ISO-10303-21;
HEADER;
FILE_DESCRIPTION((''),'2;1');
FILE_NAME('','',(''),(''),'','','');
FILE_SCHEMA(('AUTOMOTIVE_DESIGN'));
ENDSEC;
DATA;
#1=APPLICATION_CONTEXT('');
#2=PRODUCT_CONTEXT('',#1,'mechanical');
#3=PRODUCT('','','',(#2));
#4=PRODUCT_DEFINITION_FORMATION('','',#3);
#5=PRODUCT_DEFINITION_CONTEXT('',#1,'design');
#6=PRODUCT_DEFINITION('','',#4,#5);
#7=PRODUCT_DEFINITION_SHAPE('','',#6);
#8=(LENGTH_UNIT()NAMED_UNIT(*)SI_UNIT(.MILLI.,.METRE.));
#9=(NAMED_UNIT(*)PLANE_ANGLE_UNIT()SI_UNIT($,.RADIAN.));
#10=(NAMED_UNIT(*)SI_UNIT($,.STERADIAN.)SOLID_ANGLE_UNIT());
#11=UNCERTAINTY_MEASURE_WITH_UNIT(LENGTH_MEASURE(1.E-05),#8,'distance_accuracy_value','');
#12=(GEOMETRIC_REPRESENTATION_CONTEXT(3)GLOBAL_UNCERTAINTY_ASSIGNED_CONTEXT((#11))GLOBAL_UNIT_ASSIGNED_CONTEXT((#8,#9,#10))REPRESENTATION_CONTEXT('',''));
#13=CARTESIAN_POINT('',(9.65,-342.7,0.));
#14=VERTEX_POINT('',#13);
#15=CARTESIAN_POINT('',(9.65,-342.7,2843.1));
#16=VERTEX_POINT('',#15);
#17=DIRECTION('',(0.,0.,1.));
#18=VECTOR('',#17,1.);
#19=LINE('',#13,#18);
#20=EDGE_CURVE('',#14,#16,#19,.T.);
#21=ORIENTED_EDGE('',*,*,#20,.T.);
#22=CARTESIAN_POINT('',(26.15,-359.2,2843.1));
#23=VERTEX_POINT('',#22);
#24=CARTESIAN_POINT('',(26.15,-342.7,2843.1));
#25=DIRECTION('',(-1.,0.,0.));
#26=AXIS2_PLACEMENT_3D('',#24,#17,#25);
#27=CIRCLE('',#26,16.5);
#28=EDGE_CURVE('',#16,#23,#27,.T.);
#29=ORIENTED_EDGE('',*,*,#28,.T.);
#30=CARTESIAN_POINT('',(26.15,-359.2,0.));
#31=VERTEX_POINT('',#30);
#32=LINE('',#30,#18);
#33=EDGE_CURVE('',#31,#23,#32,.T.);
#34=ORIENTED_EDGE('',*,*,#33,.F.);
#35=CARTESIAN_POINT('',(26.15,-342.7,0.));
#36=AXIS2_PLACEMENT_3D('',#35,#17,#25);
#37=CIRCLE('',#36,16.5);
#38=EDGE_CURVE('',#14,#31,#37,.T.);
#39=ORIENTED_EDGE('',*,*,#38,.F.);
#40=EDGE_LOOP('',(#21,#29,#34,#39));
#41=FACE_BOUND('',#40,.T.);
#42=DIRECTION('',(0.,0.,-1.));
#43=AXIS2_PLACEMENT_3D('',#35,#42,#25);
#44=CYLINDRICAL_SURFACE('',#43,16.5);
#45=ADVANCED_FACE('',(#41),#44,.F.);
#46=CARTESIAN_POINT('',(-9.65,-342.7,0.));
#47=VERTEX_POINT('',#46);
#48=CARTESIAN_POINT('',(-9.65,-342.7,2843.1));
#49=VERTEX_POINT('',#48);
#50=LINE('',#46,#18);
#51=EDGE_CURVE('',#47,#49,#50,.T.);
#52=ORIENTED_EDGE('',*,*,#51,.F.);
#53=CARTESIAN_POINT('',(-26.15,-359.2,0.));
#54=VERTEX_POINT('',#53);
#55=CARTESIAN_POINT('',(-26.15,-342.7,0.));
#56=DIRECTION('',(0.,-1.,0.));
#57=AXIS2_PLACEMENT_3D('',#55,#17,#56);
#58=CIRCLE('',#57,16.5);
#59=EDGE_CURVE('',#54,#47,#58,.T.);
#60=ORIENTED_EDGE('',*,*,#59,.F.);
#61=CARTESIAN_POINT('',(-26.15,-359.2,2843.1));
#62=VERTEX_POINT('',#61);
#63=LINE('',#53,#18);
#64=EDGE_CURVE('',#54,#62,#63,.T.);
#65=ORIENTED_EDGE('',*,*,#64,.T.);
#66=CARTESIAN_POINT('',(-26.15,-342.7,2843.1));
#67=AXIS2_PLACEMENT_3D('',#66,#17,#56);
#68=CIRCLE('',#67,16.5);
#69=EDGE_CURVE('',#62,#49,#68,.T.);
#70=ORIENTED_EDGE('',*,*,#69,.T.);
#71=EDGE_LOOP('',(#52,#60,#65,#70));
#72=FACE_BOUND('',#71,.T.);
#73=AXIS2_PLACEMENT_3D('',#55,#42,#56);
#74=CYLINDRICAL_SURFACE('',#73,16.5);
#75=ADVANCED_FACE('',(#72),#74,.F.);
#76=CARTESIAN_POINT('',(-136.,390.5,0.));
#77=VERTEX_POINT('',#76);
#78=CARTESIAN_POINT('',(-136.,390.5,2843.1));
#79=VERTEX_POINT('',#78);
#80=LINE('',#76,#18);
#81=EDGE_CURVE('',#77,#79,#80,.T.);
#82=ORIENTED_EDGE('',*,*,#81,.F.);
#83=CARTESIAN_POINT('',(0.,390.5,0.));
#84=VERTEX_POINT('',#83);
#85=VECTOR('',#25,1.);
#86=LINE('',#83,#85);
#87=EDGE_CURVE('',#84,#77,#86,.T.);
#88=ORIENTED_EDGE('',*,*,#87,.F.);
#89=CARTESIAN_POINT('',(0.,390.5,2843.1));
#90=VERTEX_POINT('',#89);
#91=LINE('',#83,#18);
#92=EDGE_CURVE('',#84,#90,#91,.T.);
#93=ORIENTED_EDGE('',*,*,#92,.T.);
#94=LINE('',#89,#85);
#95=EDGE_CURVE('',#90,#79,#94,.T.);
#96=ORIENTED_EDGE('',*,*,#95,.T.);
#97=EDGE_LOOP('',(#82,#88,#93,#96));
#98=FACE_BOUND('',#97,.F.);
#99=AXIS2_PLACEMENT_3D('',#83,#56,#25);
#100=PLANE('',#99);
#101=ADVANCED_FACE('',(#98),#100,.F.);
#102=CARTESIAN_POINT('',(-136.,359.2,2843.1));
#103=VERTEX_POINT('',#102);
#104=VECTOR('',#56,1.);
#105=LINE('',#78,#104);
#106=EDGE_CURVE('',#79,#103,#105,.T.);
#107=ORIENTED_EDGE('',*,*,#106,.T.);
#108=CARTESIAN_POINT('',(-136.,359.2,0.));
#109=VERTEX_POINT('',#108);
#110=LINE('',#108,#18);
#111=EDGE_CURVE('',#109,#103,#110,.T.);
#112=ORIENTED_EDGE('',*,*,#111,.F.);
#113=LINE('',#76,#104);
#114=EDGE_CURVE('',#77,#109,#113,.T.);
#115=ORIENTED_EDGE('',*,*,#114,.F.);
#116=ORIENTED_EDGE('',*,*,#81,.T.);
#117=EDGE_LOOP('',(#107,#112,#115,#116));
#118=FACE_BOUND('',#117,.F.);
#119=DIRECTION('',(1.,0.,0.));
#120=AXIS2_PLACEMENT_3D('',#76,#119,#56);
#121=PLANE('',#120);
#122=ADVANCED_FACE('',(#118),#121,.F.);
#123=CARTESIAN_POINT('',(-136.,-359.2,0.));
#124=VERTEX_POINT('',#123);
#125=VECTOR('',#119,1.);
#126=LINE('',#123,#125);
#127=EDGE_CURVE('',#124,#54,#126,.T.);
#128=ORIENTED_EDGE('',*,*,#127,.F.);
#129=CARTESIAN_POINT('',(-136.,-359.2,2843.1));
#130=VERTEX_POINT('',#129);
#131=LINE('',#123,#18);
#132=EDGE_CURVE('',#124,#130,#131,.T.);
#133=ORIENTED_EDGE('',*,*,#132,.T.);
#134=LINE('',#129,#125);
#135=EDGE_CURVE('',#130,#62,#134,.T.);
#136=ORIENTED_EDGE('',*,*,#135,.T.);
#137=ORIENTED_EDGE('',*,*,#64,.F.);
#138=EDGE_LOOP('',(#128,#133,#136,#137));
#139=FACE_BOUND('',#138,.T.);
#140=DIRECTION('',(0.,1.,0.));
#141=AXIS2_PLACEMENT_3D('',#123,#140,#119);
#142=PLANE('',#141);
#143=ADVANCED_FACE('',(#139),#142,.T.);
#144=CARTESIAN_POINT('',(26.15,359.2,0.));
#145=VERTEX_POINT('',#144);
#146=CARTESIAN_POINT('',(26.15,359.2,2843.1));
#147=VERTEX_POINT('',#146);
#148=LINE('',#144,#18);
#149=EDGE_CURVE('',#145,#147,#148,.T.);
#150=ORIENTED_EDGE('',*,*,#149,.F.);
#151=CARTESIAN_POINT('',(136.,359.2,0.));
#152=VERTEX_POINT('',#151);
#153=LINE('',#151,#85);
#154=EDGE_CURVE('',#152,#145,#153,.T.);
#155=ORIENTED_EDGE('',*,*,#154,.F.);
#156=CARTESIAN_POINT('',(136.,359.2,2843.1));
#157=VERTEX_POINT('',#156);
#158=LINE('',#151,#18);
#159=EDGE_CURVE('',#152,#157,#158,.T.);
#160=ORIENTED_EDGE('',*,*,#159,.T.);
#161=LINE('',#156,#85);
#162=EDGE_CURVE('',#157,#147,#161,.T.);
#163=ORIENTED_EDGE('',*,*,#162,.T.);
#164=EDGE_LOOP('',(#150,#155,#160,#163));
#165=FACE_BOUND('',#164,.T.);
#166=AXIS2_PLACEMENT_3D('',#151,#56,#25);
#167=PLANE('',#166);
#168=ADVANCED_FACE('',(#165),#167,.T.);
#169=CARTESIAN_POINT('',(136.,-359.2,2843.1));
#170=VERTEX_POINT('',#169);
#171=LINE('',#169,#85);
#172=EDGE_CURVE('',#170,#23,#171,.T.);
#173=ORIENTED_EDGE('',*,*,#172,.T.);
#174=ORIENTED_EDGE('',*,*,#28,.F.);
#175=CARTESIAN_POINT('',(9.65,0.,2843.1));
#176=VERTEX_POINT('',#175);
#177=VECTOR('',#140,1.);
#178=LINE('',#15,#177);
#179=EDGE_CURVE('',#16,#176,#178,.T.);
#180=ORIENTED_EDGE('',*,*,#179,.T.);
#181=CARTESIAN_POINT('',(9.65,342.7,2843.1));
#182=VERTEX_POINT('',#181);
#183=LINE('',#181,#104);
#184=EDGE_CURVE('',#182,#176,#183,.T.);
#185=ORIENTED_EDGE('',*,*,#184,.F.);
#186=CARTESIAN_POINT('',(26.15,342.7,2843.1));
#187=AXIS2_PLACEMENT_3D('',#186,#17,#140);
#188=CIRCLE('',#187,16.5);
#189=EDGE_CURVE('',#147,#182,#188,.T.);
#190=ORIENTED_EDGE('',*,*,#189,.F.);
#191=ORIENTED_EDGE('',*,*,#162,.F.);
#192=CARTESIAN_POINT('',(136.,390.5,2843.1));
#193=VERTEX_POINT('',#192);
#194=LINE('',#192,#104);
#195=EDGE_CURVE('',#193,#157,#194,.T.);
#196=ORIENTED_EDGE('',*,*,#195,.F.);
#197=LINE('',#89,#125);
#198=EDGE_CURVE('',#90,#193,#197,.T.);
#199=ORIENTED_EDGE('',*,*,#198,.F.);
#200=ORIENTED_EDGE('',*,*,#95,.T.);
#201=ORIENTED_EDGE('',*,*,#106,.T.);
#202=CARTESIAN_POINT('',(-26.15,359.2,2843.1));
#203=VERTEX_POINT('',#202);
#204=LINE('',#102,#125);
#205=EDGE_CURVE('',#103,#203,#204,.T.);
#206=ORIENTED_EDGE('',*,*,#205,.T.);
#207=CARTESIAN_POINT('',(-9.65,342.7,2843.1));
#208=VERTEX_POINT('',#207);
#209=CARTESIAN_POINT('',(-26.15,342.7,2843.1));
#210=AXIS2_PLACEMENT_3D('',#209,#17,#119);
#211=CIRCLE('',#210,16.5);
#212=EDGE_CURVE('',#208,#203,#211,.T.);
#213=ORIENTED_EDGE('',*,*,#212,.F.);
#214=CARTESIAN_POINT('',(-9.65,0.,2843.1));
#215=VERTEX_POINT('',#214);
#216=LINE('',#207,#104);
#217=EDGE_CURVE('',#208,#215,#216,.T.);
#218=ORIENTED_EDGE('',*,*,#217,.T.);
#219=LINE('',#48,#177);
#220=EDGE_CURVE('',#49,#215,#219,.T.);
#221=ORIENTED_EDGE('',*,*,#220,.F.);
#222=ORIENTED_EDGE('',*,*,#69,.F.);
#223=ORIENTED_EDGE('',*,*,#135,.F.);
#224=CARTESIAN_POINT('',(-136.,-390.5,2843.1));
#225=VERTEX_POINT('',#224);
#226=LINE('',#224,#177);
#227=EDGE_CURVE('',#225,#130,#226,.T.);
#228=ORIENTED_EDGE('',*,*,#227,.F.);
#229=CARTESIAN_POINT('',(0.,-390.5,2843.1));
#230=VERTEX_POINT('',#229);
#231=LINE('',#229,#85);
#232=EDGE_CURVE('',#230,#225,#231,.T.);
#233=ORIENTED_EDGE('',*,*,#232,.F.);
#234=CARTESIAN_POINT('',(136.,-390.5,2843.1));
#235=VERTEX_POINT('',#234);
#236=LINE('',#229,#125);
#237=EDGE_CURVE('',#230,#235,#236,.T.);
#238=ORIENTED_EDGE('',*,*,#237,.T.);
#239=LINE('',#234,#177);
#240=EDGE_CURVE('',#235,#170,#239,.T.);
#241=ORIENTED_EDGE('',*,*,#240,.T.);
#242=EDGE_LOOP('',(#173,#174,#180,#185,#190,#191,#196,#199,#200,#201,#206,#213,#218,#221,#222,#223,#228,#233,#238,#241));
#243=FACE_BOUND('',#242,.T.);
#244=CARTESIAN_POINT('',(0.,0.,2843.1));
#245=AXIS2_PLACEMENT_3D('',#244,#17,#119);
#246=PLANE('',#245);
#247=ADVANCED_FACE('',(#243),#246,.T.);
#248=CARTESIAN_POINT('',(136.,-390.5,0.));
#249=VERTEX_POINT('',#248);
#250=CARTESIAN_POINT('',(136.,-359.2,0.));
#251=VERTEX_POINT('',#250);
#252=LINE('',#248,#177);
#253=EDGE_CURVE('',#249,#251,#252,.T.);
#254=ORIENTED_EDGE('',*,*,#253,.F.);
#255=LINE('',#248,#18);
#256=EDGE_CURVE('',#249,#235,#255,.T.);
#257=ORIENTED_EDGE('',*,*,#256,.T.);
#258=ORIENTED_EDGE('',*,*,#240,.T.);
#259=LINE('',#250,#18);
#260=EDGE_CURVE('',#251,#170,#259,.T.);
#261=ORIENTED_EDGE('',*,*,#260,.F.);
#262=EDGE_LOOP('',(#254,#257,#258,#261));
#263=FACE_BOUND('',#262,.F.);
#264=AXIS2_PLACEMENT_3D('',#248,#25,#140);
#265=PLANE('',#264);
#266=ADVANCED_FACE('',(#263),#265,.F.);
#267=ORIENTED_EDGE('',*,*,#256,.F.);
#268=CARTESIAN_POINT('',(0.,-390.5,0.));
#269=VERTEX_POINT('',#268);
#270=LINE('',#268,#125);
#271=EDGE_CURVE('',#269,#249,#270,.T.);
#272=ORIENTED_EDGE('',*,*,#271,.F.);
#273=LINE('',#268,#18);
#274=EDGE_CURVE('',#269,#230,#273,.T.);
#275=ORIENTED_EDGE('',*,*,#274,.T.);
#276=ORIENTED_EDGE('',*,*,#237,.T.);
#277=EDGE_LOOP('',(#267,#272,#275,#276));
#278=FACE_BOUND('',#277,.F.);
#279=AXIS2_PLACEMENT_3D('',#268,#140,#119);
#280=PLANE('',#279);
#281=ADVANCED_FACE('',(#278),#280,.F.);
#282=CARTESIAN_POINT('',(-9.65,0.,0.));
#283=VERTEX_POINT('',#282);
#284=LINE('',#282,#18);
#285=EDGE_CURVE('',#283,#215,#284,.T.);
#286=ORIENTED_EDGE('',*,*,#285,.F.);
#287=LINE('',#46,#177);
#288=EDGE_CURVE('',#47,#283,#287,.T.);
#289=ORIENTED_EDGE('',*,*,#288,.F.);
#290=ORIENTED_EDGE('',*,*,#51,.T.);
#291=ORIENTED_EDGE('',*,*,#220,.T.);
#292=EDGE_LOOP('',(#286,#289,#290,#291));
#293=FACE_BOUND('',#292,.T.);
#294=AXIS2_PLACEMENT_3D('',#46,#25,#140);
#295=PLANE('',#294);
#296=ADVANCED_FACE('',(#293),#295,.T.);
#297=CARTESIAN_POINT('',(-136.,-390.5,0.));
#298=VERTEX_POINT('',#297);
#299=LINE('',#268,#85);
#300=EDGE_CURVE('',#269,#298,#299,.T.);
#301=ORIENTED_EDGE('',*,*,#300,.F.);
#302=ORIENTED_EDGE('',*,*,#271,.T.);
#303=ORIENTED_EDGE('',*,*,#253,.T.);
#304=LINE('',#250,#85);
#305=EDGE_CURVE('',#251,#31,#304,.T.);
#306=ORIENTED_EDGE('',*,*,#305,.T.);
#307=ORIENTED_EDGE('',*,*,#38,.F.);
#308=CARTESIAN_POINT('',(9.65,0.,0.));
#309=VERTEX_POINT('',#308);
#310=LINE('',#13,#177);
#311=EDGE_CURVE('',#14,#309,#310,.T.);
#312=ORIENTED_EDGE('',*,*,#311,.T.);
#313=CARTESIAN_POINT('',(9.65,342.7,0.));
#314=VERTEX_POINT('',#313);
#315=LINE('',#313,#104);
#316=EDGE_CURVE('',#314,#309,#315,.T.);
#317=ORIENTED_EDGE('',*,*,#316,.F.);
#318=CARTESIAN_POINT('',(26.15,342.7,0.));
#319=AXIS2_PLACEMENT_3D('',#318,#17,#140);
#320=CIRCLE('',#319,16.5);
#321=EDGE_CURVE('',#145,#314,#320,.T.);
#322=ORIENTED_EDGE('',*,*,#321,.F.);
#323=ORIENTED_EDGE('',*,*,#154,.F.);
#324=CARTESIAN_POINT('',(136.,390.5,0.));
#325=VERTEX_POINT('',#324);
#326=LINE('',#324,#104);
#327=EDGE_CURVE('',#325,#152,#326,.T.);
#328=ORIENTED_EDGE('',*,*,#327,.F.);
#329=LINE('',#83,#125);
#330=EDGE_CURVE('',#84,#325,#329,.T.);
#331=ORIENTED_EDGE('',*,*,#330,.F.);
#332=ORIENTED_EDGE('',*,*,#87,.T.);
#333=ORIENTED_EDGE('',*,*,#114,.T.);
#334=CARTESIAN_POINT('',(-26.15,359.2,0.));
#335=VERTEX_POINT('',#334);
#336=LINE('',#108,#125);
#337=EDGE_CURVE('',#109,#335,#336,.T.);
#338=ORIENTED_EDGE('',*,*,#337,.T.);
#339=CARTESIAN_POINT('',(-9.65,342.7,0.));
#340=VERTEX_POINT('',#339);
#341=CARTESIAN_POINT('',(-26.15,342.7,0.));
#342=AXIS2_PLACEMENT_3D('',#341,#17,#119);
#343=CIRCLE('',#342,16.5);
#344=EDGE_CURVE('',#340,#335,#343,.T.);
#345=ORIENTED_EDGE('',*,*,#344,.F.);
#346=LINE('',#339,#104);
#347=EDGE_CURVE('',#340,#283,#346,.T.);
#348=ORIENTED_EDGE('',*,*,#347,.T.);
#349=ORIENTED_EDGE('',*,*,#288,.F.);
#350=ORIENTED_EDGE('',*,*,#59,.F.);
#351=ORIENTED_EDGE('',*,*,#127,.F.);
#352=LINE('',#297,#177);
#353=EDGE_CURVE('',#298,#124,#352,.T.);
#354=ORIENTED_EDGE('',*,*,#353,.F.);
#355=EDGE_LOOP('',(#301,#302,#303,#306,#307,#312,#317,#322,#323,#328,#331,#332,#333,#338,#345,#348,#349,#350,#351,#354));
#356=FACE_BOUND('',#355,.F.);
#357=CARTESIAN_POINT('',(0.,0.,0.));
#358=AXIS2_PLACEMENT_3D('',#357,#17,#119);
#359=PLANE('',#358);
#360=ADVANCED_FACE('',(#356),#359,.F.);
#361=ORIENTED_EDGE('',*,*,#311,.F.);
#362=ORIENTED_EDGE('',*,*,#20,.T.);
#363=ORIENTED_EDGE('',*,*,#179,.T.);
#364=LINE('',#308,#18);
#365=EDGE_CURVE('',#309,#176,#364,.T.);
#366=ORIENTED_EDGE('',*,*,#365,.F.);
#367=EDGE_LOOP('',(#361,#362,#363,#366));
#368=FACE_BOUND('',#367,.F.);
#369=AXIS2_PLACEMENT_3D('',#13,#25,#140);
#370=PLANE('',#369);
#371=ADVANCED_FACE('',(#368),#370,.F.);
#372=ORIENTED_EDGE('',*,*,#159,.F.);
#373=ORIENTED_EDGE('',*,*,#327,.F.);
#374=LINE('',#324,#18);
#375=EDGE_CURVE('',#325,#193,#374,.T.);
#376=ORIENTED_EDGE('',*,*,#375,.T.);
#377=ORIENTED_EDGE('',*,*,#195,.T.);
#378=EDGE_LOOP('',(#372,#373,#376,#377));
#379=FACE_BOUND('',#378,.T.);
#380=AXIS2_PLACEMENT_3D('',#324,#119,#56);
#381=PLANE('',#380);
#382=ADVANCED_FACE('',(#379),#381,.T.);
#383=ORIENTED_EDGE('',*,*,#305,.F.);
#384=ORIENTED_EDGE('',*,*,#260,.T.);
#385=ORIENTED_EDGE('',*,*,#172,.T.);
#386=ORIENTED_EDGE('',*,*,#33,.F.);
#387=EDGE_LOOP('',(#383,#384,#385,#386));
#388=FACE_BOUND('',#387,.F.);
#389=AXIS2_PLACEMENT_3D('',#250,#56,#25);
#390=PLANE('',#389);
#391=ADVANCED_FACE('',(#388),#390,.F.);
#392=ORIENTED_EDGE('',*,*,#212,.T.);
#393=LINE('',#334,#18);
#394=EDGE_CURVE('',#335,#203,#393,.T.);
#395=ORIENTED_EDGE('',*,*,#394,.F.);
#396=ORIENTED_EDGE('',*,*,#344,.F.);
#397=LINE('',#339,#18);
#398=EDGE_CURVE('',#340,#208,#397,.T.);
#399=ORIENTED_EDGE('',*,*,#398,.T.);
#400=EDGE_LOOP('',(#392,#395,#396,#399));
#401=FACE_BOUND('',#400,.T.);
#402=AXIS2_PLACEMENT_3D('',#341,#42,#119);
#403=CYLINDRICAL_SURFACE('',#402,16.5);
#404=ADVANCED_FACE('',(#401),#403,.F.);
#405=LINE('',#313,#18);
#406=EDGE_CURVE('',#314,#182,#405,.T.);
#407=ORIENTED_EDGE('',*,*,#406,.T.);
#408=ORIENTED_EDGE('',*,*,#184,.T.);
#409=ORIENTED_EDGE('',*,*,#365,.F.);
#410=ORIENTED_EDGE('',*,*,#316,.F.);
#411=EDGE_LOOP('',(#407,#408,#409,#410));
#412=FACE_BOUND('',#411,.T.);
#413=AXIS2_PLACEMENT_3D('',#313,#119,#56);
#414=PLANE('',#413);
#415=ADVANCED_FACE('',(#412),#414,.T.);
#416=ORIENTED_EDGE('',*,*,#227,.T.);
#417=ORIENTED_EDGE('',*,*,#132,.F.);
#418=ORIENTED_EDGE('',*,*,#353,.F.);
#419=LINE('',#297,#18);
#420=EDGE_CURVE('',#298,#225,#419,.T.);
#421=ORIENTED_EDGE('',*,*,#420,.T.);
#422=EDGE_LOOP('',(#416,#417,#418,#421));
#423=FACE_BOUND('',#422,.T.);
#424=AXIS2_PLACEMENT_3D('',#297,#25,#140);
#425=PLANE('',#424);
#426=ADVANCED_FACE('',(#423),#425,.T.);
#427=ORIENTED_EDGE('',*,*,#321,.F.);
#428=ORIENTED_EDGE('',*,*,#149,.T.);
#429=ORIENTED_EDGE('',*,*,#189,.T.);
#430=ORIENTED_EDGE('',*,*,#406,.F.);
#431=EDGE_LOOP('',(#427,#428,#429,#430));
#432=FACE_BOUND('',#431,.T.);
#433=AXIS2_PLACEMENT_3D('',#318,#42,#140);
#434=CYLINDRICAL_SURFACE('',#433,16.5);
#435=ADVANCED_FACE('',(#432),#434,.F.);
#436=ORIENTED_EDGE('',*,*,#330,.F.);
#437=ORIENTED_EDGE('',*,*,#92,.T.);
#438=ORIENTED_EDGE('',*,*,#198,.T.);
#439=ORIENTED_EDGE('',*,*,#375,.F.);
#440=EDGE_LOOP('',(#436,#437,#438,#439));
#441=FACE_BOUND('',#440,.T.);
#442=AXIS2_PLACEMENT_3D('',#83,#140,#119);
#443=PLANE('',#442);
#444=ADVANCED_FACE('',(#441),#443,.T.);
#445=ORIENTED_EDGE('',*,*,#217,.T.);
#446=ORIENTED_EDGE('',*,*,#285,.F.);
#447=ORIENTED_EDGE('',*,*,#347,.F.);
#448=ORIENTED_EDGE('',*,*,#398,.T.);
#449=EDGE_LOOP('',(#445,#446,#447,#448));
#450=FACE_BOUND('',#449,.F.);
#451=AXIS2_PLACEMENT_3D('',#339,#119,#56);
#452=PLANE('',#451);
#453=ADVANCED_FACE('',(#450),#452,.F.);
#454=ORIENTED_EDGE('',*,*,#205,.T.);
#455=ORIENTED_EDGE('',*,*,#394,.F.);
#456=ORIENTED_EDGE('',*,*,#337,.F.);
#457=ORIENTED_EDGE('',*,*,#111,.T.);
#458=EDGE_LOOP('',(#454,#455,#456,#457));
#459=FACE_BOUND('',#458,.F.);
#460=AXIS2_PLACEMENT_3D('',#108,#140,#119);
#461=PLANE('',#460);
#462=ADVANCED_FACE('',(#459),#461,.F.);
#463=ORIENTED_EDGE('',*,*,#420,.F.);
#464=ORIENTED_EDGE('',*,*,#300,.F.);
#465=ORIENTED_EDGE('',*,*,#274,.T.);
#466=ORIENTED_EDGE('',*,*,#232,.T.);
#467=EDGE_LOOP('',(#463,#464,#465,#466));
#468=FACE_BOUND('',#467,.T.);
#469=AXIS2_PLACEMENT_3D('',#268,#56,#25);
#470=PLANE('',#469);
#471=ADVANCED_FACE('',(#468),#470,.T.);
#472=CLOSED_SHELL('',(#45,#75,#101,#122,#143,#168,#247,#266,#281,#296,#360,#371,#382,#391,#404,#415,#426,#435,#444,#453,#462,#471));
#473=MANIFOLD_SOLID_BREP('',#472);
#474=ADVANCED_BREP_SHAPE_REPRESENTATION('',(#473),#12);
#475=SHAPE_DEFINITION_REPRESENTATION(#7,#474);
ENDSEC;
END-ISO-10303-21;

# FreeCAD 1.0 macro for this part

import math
import FreeCAD as App
import Part
import Sketcher
from FreeCAD import Vector
Q = App.Units.Quantity

doc = App.newDocument("Part")
body = doc.addObject("PartDesign::Body", "Body")

# Sketch on XY plane
sketch1 = body.newObject("Sketcher::SketchObject", "Sketch")
sketch1.AttachmentSupport = (doc.getObject("XY_Plane"), [""])
sketch1.MapMode = "FlatFace"
sketch1.addGeometry([
    Part.LineSegment(Vector(-136, -359, 0), Vector(-136, -390, 0)),  # 0
    Part.LineSegment(Vector(-136, -390, 0), Vector(136, -390, 0)),  # 1
    Part.LineSegment(Vector(136, -390, 0), Vector(136, -359, 0)),  # 2
    Part.LineSegment(Vector(136, -359, 0), Vector(26, -359, 0)),  # 3
    Part.ArcOfCircle(Part.Circle(Vector(26, -343, 0), Vector(0, 0, 1), 16), math.radians(180), math.radians(270)),  # 4
    Part.LineSegment(Vector(10, -343, 0), Vector(10, 343, 0)),  # 5
    Part.ArcOfCircle(Part.Circle(Vector(26, 343, 0), Vector(0, 0, 1), 16), math.radians(90), math.radians(180)),  # 6
    Part.LineSegment(Vector(26, 359, 0), Vector(136, 359, 0)),  # 7
    Part.LineSegment(Vector(136, 359, 0), Vector(136, 390, 0)),  # 8
    Part.LineSegment(Vector(136, 390, 0), Vector(-136, 390, 0)),  # 9
    Part.LineSegment(Vector(-136, 390, 0), Vector(-136, 359, 0)),  # 10
    Part.LineSegment(Vector(-136, 359, 0), Vector(-26, 359, 0)),  # 11
    Part.ArcOfCircle(Part.Circle(Vector(-26, 343, 0), Vector(0, 0, 1), 16), math.radians(0), math.radians(90)),  # 12
    Part.LineSegment(Vector(-10, 343, 0), Vector(-10, -343, 0)),  # 13
    Part.ArcOfCircle(Part.Circle(Vector(-26, -343, 0), Vector(0, 0, 1), 16), math.radians(-90), math.radians(0)),  # 14
    Part.LineSegment(Vector(-26, -359, 0), Vector(-136, -359, 0)),  # 15
], False)
sketch1.addConstraint([
    Sketcher.Constraint("Coincident", 0, 2, 1, 1),
    Sketcher.Constraint("Coincident", 1, 2, 2, 1),
    Sketcher.Constraint("Coincident", 2, 2, 3, 1),
    Sketcher.Constraint("Tangent", 3, 2, 4, 2),
    Sketcher.Constraint("Tangent", 4, 1, 5, 1),
    Sketcher.Constraint("Tangent", 5, 2, 6, 2),
    Sketcher.Constraint("Tangent", 6, 1, 7, 1),
    Sketcher.Constraint("Coincident", 7, 2, 8, 1),
    Sketcher.Constraint("Coincident", 8, 2, 9, 1),
    Sketcher.Constraint("Coincident", 9, 2, 10, 1),
    Sketcher.Constraint("Coincident", 10, 2, 11, 1),
    Sketcher.Constraint("Tangent", 11, 2, 12, 2),
    Sketcher.Constraint("Tangent", 12, 1, 13, 1),
    Sketcher.Constraint("Tangent", 13, 2, 14, 2),
    Sketcher.Constraint("Tangent", 14, 1, 15, 1),
    Sketcher.Constraint("Coincident", 15, 2, 0, 1),
    Sketcher.Constraint("Vertical", 0),
    Sketcher.Constraint("Horizontal", 1),
    Sketcher.Constraint("Vertical", 2),
    Sketcher.Constraint("Horizontal", 3),
    Sketcher.Constraint("Vertical", 5),
    Sketcher.Constraint("Horizontal", 7),
    Sketcher.Constraint("Vertical", 8),
    Sketcher.Constraint("Horizontal", 9),
    Sketcher.Constraint("Vertical", 10),
    Sketcher.Constraint("Horizontal", 11),
    Sketcher.Constraint("Vertical", 13),
    Sketcher.Constraint("Horizontal", 15),
    Sketcher.Constraint("Equal", 4, 6),
    Sketcher.Constraint("Equal", 6, 12),
    Sketcher.Constraint("Equal", 12, 14),
    Sketcher.Constraint("Symmetric", 4, 3, 12, 3, -1, 1),
    Sketcher.Constraint("Symmetric", 0, 2, 8, 2, -1, 1),
    Sketcher.Constraint("Symmetric", 7, 2, 10, 2, -2),
    Sketcher.Constraint("Symmetric", 2, 2, 15, 2, -2),
    Sketcher.Constraint("Radius", 4, Q("16.5 mm")),
    Sketcher.Constraint("DistanceY", 0, 2, 0, 1, Q("31.3 mm")),
    Sketcher.Constraint("DistanceX", 0, 2, -1, 1, Q("136 mm")),
    Sketcher.Constraint("DistanceY", 0, 2, -1, 1, Q("390.5 mm")),
    Sketcher.Constraint("DistanceX", -1, 1, 4, 1, Q("9.65 mm")),
])
pad1 = body.newObject("PartDesign::Pad", "Pad")
pad1.Profile = sketch1
pad1.Length = 2843.1

doc.recompute()
